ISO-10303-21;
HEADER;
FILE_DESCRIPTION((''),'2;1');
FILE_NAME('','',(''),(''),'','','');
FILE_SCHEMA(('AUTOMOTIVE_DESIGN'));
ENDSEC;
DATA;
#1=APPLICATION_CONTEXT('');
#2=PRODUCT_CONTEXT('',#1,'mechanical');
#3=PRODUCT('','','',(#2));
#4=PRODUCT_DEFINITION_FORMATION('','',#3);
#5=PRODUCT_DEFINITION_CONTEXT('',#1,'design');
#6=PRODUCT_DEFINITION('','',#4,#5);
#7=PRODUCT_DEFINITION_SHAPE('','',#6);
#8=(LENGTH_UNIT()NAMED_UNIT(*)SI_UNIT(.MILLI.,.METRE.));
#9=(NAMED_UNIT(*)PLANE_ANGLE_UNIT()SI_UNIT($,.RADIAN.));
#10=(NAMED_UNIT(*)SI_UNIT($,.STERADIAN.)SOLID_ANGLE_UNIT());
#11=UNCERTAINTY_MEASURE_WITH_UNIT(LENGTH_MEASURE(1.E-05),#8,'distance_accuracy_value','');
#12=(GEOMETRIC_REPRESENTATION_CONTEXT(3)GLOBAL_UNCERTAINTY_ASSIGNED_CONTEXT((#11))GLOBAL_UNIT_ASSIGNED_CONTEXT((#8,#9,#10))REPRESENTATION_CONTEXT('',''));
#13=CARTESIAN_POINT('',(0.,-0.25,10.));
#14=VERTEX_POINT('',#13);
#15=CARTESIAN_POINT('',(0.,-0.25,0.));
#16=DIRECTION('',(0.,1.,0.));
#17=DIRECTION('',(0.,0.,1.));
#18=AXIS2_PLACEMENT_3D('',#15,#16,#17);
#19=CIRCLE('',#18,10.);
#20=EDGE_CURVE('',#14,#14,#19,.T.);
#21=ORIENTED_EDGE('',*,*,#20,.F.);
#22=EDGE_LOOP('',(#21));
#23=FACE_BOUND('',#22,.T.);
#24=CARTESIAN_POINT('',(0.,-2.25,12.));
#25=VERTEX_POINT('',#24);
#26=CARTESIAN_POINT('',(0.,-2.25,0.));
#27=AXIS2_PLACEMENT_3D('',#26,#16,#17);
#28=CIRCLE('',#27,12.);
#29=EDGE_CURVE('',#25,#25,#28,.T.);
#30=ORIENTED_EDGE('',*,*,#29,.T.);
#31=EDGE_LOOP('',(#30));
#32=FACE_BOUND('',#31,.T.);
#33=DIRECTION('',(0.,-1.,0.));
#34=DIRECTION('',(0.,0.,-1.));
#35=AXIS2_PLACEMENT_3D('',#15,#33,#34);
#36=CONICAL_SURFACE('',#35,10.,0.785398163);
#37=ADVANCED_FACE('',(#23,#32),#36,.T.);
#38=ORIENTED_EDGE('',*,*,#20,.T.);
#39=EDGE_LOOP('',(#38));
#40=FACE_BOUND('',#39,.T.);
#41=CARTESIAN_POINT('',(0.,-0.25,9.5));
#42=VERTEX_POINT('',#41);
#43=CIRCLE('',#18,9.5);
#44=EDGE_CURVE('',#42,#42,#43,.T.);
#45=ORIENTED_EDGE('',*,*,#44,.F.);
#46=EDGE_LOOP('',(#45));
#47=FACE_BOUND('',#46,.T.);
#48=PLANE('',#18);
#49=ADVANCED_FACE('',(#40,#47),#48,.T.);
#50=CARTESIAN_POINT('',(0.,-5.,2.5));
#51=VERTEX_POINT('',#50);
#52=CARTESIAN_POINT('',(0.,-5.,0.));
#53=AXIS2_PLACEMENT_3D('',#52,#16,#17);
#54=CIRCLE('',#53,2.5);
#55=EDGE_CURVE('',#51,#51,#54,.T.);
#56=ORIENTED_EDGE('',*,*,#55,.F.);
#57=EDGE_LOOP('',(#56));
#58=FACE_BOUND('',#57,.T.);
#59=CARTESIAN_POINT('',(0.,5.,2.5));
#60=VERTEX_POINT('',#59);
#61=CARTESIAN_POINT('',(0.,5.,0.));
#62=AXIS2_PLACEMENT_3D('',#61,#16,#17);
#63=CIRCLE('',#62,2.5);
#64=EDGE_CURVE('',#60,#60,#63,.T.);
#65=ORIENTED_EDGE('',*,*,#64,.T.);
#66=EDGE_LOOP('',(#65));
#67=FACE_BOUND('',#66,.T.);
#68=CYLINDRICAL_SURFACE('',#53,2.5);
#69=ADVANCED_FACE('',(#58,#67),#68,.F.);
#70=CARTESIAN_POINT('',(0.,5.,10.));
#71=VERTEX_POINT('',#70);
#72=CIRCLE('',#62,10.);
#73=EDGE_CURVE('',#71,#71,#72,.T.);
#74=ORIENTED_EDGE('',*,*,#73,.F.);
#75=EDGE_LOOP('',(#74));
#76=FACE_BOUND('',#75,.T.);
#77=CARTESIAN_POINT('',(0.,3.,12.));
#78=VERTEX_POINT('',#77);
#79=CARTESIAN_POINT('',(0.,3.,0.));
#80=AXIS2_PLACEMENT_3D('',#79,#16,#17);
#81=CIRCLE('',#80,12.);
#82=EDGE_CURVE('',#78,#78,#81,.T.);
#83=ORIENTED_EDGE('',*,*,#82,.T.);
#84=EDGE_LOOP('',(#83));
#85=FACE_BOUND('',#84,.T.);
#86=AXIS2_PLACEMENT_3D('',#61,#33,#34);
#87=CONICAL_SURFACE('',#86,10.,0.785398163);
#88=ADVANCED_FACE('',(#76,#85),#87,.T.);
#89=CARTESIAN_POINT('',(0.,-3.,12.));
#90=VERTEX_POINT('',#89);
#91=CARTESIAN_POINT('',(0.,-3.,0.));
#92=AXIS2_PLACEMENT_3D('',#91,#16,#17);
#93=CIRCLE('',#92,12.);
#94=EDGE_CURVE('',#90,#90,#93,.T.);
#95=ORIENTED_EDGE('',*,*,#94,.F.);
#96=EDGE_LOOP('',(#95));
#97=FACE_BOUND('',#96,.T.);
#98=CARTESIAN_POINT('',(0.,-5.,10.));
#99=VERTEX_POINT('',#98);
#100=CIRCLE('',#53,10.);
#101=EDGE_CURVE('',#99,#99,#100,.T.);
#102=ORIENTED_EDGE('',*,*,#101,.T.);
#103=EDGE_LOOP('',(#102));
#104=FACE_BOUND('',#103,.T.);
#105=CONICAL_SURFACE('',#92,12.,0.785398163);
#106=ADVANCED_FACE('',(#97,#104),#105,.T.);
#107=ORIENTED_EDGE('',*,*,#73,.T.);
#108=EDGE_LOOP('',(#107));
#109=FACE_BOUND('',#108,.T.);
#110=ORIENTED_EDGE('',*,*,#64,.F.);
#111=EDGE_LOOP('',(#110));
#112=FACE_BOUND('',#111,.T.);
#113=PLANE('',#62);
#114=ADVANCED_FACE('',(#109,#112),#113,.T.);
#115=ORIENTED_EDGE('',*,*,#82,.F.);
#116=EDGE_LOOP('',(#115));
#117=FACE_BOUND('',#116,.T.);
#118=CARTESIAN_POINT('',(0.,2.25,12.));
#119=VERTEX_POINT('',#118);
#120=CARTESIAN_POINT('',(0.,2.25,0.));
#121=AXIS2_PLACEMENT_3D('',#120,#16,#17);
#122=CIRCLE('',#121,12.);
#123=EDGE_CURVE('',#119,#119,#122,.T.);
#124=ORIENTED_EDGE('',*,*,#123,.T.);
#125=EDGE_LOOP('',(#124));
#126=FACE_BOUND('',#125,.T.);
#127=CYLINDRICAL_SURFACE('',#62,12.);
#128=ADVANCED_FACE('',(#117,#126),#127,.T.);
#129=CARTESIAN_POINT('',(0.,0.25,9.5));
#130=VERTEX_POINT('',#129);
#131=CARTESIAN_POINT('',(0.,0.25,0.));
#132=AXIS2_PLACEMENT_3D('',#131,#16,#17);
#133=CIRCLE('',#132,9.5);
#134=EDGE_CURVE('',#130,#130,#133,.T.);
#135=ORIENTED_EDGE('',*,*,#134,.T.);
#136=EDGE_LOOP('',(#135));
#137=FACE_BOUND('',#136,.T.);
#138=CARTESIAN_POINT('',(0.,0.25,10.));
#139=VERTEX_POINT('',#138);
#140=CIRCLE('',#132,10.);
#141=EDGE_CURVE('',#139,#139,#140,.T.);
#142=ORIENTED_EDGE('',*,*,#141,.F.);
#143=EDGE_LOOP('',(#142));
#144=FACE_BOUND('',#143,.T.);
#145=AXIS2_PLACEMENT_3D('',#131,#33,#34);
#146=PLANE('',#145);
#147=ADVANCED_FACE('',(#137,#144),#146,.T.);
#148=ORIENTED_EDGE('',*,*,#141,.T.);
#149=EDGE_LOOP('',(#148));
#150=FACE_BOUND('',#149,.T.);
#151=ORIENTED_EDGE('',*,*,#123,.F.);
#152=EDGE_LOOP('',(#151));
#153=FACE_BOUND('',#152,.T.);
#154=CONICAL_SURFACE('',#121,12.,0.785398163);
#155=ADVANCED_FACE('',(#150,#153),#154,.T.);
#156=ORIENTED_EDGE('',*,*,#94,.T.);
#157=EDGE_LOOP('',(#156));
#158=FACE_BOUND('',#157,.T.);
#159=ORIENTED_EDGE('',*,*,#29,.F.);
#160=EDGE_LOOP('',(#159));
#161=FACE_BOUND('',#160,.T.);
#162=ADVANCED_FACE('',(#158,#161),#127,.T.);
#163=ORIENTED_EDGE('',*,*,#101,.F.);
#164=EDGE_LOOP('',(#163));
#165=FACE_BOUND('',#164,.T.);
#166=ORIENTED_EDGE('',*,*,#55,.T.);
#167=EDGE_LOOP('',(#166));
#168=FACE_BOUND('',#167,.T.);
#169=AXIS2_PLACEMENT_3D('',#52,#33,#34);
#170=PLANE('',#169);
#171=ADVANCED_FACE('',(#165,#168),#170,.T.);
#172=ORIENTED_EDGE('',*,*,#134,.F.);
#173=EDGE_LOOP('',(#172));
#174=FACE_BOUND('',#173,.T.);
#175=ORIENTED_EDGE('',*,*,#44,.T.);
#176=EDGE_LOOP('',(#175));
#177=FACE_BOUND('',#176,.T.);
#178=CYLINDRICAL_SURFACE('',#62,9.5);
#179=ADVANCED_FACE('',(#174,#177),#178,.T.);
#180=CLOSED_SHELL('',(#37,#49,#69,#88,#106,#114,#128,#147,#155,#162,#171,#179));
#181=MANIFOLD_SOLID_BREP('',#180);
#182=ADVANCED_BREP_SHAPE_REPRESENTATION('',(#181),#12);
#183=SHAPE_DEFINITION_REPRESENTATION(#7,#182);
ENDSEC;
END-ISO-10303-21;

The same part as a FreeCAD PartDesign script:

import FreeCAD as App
import Part
import Sketcher
from FreeCAD import Vector
Q = App.Units.Quantity


def add_polygon(sketch, points):
    """Adds a closed chain of lines whose ends are joined by coincident constraints."""
    first, n = sketch.GeometryCount, len(points)
    for a, b in zip(points, points[1:] + points[:1]):
        sketch.addGeometry(Part.LineSegment(App.Vector(*a, 0), App.Vector(*b, 0)), False)
    for i in range(n):
        sketch.addConstraint(Sketcher.Constraint("Coincident", first + i, 2, first + (i + 1) % n, 1))

doc = App.newDocument("Part")
body = doc.addObject("PartDesign::Body", "Body")

sketch1 = body.newObject("Sketcher::SketchObject", "Sketch")
sketch1.AttachmentSupport = (doc.getObject("XY_Plane"), [""])
sketch1.MapMode = "FlatFace"
add_polygon(sketch1, [(10, 5), (0, 5), (0, -5), (10, -5), (12, -3), (12, -2.2), (10, -0.2), (9.5, -0.2), (9.5, 0.2), (10, 0.2), (12, 2.2), (12, 3)])
sketch1.addConstraint(Sketcher.Constraint("Horizontal", 0))
sketch1.addConstraint(Sketcher.Constraint("Vertical", 1))
sketch1.addConstraint(Sketcher.Constraint("Horizontal", 2))
sketch1.addConstraint(Sketcher.Constraint("Vertical", 4))
sketch1.addConstraint(Sketcher.Constraint("Horizontal", 6))
sketch1.addConstraint(Sketcher.Constraint("Vertical", 7))
sketch1.addConstraint(Sketcher.Constraint("Horizontal", 8))
sketch1.addConstraint(Sketcher.Constraint("Vertical", 10))
sketch1.addConstraint(Sketcher.Constraint("Symmetric", 0, 2, 1, 2, -1, 1))
sketch1.addConstraint(Sketcher.Constraint("Symmetric", 5, 2, 8, 2, -1))
sketch1.addConstraint(Sketcher.Constraint("Symmetric", 4, 2, 9, 2, -1))
sketch1.addConstraint(Sketcher.Constraint("Perpendicular", 3, 5))
sketch1.addConstraint(Sketcher.Constraint("Perpendicular", 5, 9))
sketch1.addConstraint(Sketcher.Constraint("Perpendicular", 9, 11))
sketch1.addConstraint(Sketcher.Constraint("Vertical", 2, 2, 5, 2))
sketch1.addConstraint(Sketcher.Constraint("Vertical", 8, 2, 11, 2))
sketch1.addConstraint(Sketcher.Constraint("Equal", 2, 1))
sketch1.addConstraint(Sketcher.Constraint("Equal", 8, 7))
sketch1.addConstraint(Sketcher.Constraint("DistanceX", 0, 2, 0, 1, Q("10 mm")))
sketch1.addConstraint(Sketcher.Constraint("DistanceX", 6, 2, 6, 1, Q("0.5 mm")))
sketch1.addConstraint(Sketcher.Constraint("DistanceX", -1, 1, 3, 2, Q("12 mm")))
revolution = body.newObject("PartDesign::Revolution", "Revolution")
revolution.Profile = sketch1
revolution.ReferenceAxis = (sketch1, ["V_Axis"])
revolution.Angle = 360

sketch2 = body.newObject("Sketcher::SketchObject", "Sketch001")
sketch2.AttachmentSupport = (doc.getObject("XZ_Plane"), [""])
sketch2.MapMode = "FlatFace"
sketch2.AttachmentOffset = App.Placement(Vector(0, 0, -5), App.Rotation())
sketch2.addGeometry(Part.Circle(Vector(0, 0, 0), Vector(0, 0, 1), 2.5), False)
sketch2.addConstraint(Sketcher.Constraint("Coincident", 0, 3, -1, 1))
sketch2.addConstraint(Sketcher.Constraint("Diameter", 0, Q("5 mm")))
pocket1 = body.newObject("PartDesign::Pocket", "Pocket")
pocket1.Profile = sketch2
pocket1.Type = "ThroughAll"
pocket1.Reversed = True

doc.recompute()
